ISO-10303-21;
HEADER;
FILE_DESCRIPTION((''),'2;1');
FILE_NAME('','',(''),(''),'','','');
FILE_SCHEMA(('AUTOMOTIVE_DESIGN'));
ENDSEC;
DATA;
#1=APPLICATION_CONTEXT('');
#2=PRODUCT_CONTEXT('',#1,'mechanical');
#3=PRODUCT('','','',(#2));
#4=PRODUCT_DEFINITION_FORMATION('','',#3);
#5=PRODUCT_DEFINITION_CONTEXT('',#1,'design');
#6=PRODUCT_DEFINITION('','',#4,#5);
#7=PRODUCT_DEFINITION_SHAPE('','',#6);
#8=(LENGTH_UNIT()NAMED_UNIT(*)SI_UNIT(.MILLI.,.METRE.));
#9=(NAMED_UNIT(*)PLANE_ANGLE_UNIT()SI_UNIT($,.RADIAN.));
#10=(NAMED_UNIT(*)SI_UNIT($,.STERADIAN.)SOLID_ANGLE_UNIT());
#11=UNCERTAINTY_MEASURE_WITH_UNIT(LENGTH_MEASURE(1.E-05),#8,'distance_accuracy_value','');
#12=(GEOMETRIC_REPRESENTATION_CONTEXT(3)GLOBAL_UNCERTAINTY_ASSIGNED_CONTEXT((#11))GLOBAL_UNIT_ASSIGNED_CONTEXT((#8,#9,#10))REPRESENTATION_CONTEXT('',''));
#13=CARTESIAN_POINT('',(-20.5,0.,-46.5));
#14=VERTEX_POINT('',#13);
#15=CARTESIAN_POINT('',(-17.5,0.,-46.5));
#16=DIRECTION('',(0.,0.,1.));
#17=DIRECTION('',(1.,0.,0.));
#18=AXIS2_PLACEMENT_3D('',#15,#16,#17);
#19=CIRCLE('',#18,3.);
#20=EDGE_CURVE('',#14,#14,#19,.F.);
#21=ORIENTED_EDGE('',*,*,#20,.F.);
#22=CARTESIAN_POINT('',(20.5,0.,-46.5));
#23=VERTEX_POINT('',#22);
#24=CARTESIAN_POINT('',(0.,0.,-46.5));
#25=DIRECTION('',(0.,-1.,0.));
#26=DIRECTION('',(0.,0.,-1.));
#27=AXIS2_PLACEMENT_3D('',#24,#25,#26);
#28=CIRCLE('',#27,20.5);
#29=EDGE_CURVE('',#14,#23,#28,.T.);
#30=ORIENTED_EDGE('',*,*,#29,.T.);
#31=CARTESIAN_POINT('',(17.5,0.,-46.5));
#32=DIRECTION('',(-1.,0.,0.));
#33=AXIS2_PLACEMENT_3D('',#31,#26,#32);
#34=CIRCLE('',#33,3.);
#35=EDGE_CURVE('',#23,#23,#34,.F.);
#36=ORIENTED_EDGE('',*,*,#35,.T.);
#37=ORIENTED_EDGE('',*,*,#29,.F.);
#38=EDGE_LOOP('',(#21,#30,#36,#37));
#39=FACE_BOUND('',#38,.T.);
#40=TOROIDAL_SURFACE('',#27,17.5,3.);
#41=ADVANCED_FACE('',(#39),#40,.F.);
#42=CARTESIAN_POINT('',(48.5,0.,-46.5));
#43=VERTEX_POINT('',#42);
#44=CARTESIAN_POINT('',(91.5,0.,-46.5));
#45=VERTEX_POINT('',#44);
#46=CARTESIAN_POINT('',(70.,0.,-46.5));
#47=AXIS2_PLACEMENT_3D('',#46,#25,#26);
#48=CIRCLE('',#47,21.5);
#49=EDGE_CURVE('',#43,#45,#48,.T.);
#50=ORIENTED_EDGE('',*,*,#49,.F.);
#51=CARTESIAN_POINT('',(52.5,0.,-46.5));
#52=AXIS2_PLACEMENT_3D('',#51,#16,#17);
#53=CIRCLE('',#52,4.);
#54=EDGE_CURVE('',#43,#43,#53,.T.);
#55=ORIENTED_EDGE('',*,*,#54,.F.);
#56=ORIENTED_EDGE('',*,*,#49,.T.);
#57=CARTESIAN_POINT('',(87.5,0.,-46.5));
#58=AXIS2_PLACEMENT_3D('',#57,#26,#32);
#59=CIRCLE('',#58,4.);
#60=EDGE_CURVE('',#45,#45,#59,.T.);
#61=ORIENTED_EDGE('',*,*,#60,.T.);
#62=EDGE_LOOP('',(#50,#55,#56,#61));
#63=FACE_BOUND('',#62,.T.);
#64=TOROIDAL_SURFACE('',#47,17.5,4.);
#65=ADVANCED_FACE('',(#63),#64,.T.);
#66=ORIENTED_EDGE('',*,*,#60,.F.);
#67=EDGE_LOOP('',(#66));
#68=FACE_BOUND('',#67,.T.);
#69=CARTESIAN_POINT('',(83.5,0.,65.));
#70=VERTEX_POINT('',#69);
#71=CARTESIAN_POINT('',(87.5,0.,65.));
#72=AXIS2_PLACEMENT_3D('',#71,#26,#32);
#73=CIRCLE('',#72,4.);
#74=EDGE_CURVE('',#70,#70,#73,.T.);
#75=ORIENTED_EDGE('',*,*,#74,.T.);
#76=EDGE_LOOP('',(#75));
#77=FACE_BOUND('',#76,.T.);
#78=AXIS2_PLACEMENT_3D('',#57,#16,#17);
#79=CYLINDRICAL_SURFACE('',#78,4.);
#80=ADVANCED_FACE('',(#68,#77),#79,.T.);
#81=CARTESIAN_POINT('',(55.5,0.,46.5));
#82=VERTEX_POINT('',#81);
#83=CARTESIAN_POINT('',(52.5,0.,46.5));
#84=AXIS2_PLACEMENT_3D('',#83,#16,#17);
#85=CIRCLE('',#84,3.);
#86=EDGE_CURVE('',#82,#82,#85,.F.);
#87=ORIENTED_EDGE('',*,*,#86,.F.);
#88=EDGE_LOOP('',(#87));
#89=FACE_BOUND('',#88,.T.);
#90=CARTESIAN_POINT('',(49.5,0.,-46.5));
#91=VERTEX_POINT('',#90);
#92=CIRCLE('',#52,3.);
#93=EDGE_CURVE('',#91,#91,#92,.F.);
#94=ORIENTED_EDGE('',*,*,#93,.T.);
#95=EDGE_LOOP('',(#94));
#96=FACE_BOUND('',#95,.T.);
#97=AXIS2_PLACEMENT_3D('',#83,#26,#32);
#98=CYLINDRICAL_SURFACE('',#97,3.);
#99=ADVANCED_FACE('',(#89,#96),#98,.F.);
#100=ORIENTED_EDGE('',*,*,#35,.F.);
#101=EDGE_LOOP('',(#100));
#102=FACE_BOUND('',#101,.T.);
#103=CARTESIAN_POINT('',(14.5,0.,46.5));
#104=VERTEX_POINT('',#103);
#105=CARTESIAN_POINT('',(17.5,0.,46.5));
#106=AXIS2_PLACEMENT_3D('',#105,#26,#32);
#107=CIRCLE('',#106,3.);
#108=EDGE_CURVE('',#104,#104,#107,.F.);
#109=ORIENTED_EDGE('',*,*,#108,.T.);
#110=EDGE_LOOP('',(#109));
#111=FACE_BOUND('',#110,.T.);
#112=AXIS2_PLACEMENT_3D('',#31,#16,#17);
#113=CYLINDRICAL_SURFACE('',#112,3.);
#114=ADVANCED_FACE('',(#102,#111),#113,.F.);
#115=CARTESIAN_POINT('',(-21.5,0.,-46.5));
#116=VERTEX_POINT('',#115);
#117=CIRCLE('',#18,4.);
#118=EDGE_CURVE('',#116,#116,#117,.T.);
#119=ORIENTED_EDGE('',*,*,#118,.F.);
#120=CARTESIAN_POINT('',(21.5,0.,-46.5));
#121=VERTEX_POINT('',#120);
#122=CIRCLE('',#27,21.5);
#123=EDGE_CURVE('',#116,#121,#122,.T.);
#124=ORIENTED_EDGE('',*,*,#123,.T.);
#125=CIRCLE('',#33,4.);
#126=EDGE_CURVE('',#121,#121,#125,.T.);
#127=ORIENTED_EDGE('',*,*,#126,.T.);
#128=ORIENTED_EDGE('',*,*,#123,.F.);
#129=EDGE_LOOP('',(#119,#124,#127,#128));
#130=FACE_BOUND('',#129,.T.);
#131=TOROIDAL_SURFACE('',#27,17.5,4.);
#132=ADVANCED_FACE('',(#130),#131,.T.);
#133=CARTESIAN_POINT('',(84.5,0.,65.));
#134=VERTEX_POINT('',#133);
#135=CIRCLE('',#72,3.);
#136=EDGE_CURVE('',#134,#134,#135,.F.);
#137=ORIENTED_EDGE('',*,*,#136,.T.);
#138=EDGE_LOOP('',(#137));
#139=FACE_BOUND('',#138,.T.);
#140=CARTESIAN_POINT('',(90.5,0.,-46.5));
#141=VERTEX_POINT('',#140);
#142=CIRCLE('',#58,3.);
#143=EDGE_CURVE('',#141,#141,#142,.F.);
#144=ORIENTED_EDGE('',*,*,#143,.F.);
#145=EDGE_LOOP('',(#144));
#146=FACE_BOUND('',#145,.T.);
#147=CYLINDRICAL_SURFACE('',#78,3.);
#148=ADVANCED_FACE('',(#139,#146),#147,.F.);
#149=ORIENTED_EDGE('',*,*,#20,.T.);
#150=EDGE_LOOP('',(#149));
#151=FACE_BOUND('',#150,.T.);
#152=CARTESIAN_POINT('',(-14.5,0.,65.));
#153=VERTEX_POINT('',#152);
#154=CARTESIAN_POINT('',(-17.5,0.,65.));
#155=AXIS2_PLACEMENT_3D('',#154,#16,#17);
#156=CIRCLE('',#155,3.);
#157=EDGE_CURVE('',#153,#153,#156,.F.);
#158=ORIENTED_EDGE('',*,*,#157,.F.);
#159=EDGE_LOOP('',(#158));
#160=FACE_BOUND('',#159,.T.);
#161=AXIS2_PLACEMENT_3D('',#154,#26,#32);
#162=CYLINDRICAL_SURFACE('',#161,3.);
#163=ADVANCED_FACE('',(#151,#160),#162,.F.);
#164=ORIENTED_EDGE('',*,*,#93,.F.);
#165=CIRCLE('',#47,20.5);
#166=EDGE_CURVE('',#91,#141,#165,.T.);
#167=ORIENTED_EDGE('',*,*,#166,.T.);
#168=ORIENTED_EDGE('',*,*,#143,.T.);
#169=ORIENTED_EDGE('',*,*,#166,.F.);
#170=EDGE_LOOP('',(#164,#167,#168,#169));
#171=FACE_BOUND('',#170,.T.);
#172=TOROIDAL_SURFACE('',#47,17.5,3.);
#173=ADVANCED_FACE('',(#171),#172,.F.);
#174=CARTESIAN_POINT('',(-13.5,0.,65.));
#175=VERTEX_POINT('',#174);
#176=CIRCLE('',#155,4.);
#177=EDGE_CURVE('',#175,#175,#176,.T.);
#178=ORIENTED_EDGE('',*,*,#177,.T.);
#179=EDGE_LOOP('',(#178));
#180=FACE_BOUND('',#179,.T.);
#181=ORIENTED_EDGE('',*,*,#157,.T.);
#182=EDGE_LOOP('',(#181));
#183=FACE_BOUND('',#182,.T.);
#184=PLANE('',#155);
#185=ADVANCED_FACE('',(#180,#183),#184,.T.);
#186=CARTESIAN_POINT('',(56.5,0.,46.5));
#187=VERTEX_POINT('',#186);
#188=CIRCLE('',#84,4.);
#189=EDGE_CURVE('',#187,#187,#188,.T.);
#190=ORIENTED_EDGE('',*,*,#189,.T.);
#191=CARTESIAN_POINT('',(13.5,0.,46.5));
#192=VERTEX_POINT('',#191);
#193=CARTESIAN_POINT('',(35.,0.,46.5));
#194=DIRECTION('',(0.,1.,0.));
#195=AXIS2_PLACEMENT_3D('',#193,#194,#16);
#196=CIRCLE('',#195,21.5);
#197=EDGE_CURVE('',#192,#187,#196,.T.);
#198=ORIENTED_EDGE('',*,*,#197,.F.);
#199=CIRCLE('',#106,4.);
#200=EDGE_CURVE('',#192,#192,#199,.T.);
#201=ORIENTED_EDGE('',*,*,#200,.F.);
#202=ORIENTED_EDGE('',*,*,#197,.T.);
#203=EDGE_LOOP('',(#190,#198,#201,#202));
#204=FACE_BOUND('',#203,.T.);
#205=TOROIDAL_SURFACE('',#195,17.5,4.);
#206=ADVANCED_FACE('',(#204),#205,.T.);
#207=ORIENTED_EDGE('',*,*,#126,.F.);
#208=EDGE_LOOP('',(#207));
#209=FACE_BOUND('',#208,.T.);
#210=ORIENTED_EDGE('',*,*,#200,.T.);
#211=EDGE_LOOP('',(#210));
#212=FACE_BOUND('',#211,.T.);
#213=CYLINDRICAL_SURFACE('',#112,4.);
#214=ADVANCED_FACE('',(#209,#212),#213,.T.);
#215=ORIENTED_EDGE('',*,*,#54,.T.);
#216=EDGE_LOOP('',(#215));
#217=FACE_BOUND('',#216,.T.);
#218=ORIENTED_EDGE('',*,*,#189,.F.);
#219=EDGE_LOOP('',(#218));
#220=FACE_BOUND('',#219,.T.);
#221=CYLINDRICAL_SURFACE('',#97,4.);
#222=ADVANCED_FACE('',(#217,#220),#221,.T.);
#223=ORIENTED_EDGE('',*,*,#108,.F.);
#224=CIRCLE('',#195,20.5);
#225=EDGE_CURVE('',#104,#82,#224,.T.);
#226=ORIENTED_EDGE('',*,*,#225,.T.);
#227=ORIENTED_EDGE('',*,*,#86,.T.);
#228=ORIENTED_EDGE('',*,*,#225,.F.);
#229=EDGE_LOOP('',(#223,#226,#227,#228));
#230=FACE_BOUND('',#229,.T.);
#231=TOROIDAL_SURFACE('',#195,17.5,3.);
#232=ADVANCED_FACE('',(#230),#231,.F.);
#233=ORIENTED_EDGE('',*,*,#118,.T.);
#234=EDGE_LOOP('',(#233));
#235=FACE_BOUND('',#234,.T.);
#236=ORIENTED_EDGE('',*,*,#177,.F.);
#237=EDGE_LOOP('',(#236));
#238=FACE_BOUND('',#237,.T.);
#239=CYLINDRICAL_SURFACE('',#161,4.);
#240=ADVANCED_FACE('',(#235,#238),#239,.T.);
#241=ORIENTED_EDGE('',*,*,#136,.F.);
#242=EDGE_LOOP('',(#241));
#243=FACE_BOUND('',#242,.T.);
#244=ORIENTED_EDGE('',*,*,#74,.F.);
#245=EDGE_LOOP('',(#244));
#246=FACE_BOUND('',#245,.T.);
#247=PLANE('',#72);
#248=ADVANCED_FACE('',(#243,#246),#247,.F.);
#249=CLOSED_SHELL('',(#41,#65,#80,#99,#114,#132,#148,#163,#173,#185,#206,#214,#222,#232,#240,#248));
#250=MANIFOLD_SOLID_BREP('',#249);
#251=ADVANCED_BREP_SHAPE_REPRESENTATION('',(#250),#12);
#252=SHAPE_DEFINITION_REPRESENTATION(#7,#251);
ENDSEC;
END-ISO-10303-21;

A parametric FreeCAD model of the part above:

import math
import FreeCAD as App
import Part
import Sketcher
from FreeCAD import Vector

doc = App.newDocument("Part")
body = doc.addObject("PartDesign::Body", "Body")

sketch1 = body.newObject("Sketcher::SketchObject", "Sketch")
sketch1.AttachmentSupport = (doc.getObject("XY_Plane"), [""])
sketch1.MapMode = "FlatFace"
sketch1.AttachmentOffset = App.Placement(Vector(0, 0, 65), App.Rotation())
sketch1.addGeometry(Part.Circle(Vector(-17.5, 0, 0), Vector(0, 0, 1), 4), False)
sketch1.addGeometry(Part.Circle(Vector(-17.5, 0, 0), Vector(0, 0, 1), 3), False)
sketch1.addConstraint(Sketcher.Constraint("Coincident", 1, 3, 0, 3))
sketch1.addConstraint(Sketcher.Constraint("PointOnObject", 0, 3, -1))
sketch1.addConstraint(Sketcher.Constraint("Diameter", 0, 8.0))
sketch1.addConstraint(Sketcher.Constraint("Diameter", 1, 6.0))
sketch1.addConstraint(Sketcher.Constraint("DistanceX", 0, 3, -1, 1, 17.5))

sketch2 = body.newObject("Sketcher::SketchObject", "Sketch001")
sketch2.AttachmentSupport = (doc.getObject("XZ_Plane"), [""])
sketch2.MapMode = "FlatFace"
sketch2.addGeometry(Part.LineSegment(Vector(87.5, 65, 0), Vector(87.5, -46.5, 0)), False)
sketch2.addGeometry(Part.ArcOfCircle(Part.Circle(Vector(70, -46.5, 0), Vector(0, 0, 1), 17.5), math.radians(180), math.radians(360)), False)
sketch2.addGeometry(Part.LineSegment(Vector(52.5, -46.5, 0), Vector(52.5, 46.5, 0)), False)
sketch2.addGeometry(Part.ArcOfCircle(Part.Circle(Vector(35, 46.5, 0), Vector(0, 0, 1), 17.5), math.radians(0), math.radians(180)), False)
sketch2.addGeometry(Part.LineSegment(Vector(17.5, 46.5, 0), Vector(17.5, -46.5, 0)), False)
sketch2.addGeometry(Part.ArcOfCircle(Part.Circle(Vector(0, -46.5, 0), Vector(0, 0, 1), 17.5), math.radians(180), math.radians(360)), False)
sketch2.addGeometry(Part.LineSegment(Vector(-17.5, -46.5, 0), Vector(-17.5, 65, 0)), False)
sketch2.addConstraint(Sketcher.Constraint("Tangent", 0, 2, 1, 2))
sketch2.addConstraint(Sketcher.Constraint("Tangent", 1, 1, 2, 1))
sketch2.addConstraint(Sketcher.Constraint("Tangent", 2, 2, 3, 1))
sketch2.addConstraint(Sketcher.Constraint("Tangent", 3, 2, 4, 1))
sketch2.addConstraint(Sketcher.Constraint("Tangent", 4, 2, 5, 2))
sketch2.addConstraint(Sketcher.Constraint("Tangent", 5, 1, 6, 1))
sketch2.addConstraint(Sketcher.Constraint("Vertical", 0))
sketch2.addConstraint(Sketcher.Constraint("Vertical", 2))
sketch2.addConstraint(Sketcher.Constraint("Vertical", 4))
sketch2.addConstraint(Sketcher.Constraint("Vertical", 6))
sketch2.addConstraint(Sketcher.Constraint("Equal", 1, 3))
sketch2.addConstraint(Sketcher.Constraint("Equal", 3, 5))
sketch2.addConstraint(Sketcher.Constraint("Symmetric", 3, 2, 5, 1, -1, 1))
sketch2.addConstraint(Sketcher.Constraint("Horizontal", 1, 3, 5, 3))
sketch2.addConstraint(Sketcher.Constraint("Horizontal", 0, 1, 6, 2))
sketch2.addConstraint(Sketcher.Constraint("Radius", 1, 17.5))
sketch2.addConstraint(Sketcher.Constraint("DistanceY", 2, 1, 2, 2, 93.0))
sketch2.addConstraint(Sketcher.Constraint("DistanceY", 0, 2, 0, 1, 111.5))
doc.recompute()

additivepipe = body.newObject("PartDesign::AdditivePipe", "AdditivePipe")
additivepipe.Profile = sketch1
additivepipe.Spine = (sketch2, ["Edge1", "Edge2", "Edge3", "Edge4", "Edge5", "Edge6", "Edge7"])

doc.recompute()
